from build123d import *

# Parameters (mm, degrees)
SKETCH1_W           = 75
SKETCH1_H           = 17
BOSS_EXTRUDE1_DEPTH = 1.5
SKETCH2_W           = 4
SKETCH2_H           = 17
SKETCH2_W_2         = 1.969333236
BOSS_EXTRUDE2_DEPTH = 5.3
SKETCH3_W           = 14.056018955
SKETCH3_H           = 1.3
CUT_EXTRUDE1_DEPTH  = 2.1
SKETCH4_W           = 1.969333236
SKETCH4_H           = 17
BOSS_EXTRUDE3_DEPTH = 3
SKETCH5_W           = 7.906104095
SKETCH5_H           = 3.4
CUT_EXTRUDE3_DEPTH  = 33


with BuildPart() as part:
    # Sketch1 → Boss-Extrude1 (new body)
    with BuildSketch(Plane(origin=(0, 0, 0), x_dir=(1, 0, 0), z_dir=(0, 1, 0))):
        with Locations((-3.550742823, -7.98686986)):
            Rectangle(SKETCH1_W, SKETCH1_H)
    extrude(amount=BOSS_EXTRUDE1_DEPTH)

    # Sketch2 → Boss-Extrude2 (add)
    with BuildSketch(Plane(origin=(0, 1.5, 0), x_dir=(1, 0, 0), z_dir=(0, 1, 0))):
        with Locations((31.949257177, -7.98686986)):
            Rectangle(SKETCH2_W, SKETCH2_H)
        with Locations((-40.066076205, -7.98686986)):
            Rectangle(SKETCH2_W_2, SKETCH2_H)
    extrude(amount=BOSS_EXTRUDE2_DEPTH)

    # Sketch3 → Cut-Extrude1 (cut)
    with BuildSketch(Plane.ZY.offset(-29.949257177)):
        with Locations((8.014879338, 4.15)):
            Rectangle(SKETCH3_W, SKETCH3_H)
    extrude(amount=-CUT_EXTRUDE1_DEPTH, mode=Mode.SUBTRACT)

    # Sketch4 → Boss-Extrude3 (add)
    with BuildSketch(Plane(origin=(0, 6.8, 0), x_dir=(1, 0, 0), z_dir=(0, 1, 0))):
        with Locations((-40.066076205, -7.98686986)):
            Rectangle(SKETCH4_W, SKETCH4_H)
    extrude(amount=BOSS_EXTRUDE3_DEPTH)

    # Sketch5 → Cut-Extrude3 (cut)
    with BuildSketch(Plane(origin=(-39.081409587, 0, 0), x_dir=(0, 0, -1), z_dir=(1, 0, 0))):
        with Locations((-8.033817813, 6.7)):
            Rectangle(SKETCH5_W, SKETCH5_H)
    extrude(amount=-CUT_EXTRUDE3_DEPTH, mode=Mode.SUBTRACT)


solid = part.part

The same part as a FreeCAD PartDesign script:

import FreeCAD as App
import Part
import Sketcher

doc = App.newDocument("Part")
params = doc.addObject("Spreadsheet::Sheet", "Params")
for row, (alias, value) in enumerate([
    ("sketch1_width", "75 mm"),
    ("sketch1_height", "17 mm"),
    ("pad1_length", "1.5 mm"),
    ("sketch2_width", "4 mm"),
    ("sketch2_height", "17 mm"),
    ("pad2_length", "5.3 mm"),
    ("sketch3_width", "1.3 mm"),
    ("pocket1_length", "2.1 mm"),
    ("sketch4_height", "17 mm"),
    ("pad3_length", "3 mm"),
    ("sketch5_width", "3.4 mm"),
    ("pocket2_length", "33 mm"),
], start=1):
    params.set(f"A{row}", alias)
    params.set(f"B{row}", "=" + value)
    params.setAlias(f"B{row}", alias)

body = doc.addObject("PartDesign::Body", "Body")

# Sketch on XZ plane
sketch1 = body.newObject("Sketcher::SketchObject", "Sketch")
sketch1.AttachmentSupport = (doc.getObject("XZ_Plane"), [""])
sketch1.MapMode = "FlatFace"
sketch1.addGeometry(Part.LineSegment(App.Vector(-41, -1, 0), App.Vector(-41, 16, 0)), False)
sketch1.addGeometry(Part.LineSegment(App.Vector(-41, 16, 0), App.Vector(34, 16, 0)), False)
sketch1.addGeometry(Part.LineSegment(App.Vector(34, 16, 0), App.Vector(34, -1, 0)), False)
sketch1.addGeometry(Part.LineSegment(App.Vector(34, -1, 0), App.Vector(-41, -1, 0)), False)
sketch1.addConstraint(Sketcher.Constraint("Coincident", 0, 2, 1, 1))
sketch1.addConstraint(Sketcher.Constraint("Coincident", 1, 2, 2, 1))
sketch1.addConstraint(Sketcher.Constraint("Coincident", 2, 2, 3, 1))
sketch1.addConstraint(Sketcher.Constraint("Coincident", 3, 2, 0, 1))
sketch1.addConstraint(Sketcher.Constraint("Vertical", 0))
sketch1.addConstraint(Sketcher.Constraint("Horizontal", 1))
sketch1.addConstraint(Sketcher.Constraint("Vertical", 2))
sketch1.addConstraint(Sketcher.Constraint("Horizontal", 3))
sketch1.addConstraint(Sketcher.Constraint("DistanceX", 1, 1, 1, 2, 75.0))
sketch1.addConstraint(Sketcher.Constraint("DistanceY", 0, 1, 0, 2, 17.0))
sketch1.addConstraint(Sketcher.Constraint("DistanceY", -1, 1, 0, 2, 16.48687))
sketch1.addConstraint(Sketcher.Constraint("DistanceX", 0, 2, -1, 1, 41.050743))
sketch1.setExpression("Constraints[8]", "Params.sketch1_width")
sketch1.setExpression("Constraints[9]", "Params.sketch1_height")
pad1 = body.newObject("PartDesign::Pad", "Pad")
pad1.Profile = sketch1
pad1.setExpression("Length", "Params.pad1_length")
pad1.Reversed = True

# Sketch on XZ plane
sketch2 = body.newObject("Sketcher::SketchObject", "Sketch001")
sketch2.AttachmentSupport = (doc.getObject("XZ_Plane"), [""])
sketch2.MapMode = "FlatFace"
sketch2.AttachmentOffset = App.Placement(App.Vector(0, 0, -1.5), App.Rotation())
sketch2.addGeometry(Part.LineSegment(App.Vector(29.9, -0.5, 0), App.Vector(29.9, 16.5, 0)), False)
sketch2.addGeometry(Part.LineSegment(App.Vector(29.9, 16.5, 0), App.Vector(33.9, 16.5, 0)), False)
sketch2.addGeometry(Part.LineSegment(App.Vector(33.9, 16.5, 0), App.Vector(33.9, -0.5, 0)), False)
sketch2.addGeometry(Part.LineSegment(App.Vector(33.9, -0.5, 0), App.Vector(29.9, -0.5, 0)), False)
sketch2.addGeometry(Part.LineSegment(App.Vector(-41.1, -0.5, 0), App.Vector(-41.1, 16.5, 0)), False)
sketch2.addGeometry(Part.LineSegment(App.Vector(-41.1, 16.5, 0), App.Vector(-39.1, 16.5, 0)), False)
sketch2.addGeometry(Part.LineSegment(App.Vector(-39.1, 16.5, 0), App.Vector(-39.1, -0.5, 0)), False)
sketch2.addGeometry(Part.LineSegment(App.Vector(-39.1, -0.5, 0), App.Vector(-41.1, -0.5, 0)), False)
sketch2.addConstraint(Sketcher.Constraint("Coincident", 0, 2, 1, 1))
sketch2.addConstraint(Sketcher.Constraint("Coincident", 1, 2, 2, 1))
sketch2.addConstraint(Sketcher.Constraint("Coincident", 2, 2, 3, 1))
sketch2.addConstraint(Sketcher.Constraint("Coincident", 3, 2, 0, 1))
sketch2.addConstraint(Sketcher.Constraint("Coincident", 4, 2, 5, 1))
sketch2.addConstraint(Sketcher.Constraint("Coincident", 5, 2, 6, 1))
sketch2.addConstraint(Sketcher.Constraint("Coincident", 6, 2, 7, 1))
sketch2.addConstraint(Sketcher.Constraint("Coincident", 7, 2, 4, 1))
sketch2.addConstraint(Sketcher.Constraint("Vertical", 0))
sketch2.addConstraint(Sketcher.Constraint("Horizontal", 1))
sketch2.addConstraint(Sketcher.Constraint("Vertical", 2))
sketch2.addConstraint(Sketcher.Constraint("Horizontal", 3))
sketch2.addConstraint(Sketcher.Constraint("Vertical", 4))
sketch2.addConstraint(Sketcher.Constraint("Horizontal", 5))
sketch2.addConstraint(Sketcher.Constraint("Vertical", 6))
sketch2.addConstraint(Sketcher.Constraint("Horizontal", 7))
sketch2.addConstraint(Sketcher.Constraint("Horizontal", 1, 2, 4, 2))
sketch2.addConstraint(Sketcher.Constraint("Horizontal", 3, 2, 6, 2))
sketch2.addConstraint(Sketcher.Constraint("DistanceX", 1, 1, 1, 2, 4.0))
sketch2.addConstraint(Sketcher.Constraint("DistanceY", 0, 1, 0, 2, 17.0))
sketch2.addConstraint(Sketcher.Constraint("DistanceX", 4, 2, 0, 2, 71.0))
sketch2.addConstraint(Sketcher.Constraint("DistanceX", 5, 1, 5, 2, 1.969333))
sketch2.addConstraint(Sketcher.Constraint("DistanceY", -1, 1, 0, 2, 16.48687))
sketch2.addConstraint(Sketcher.Constraint("DistanceX", 5, 2, -1, 1, 39.08141))
sketch2.setExpression("Constraints[18]", "Params.sketch2_width")
sketch2.setExpression("Constraints[19]", "Params.sketch2_height")
pad2 = body.newObject("PartDesign::Pad", "Pad001")
pad2.Profile = sketch2
pad2.setExpression("Length", "Params.pad2_length")
pad2.Reversed = True

# Sketch on YZ plane
sketch3 = body.newObject("Sketcher::SketchObject", "Sketch002")
sketch3.AttachmentSupport = (doc.getObject("YZ_Plane"), [""])
sketch3.MapMode = "FlatFace"
sketch3.AttachmentOffset = App.Placement(App.Vector(0, 0, 29.949257), App.Rotation())
sketch3.addGeometry(Part.LineSegment(App.Vector(4.8, 1, 0), App.Vector(3.5, 1, 0)), False)
sketch3.addGeometry(Part.LineSegment(App.Vector(3.5, 1, 0), App.Vector(3.5, 15, 0)), False)
sketch3.addGeometry(Part.LineSegment(App.Vector(3.5, 15, 0), App.Vector(4.8, 15, 0)), False)
sketch3.addGeometry(Part.LineSegment(App.Vector(4.8, 15, 0), App.Vector(4.8, 1, 0)), False)
sketch3.addConstraint(Sketcher.Constraint("Coincident", 0, 2, 1, 1))
sketch3.addConstraint(Sketcher.Constraint("Coincident", 1, 2, 2, 1))
sketch3.addConstraint(Sketcher.Constraint("Coincident", 2, 2, 3, 1))
sketch3.addConstraint(Sketcher.Constraint("Coincident", 3, 2, 0, 1))
sketch3.addConstraint(Sketcher.Constraint("Horizontal", 0))
sketch3.addConstraint(Sketcher.Constraint("Vertical", 1))
sketch3.addConstraint(Sketcher.Constraint("Horizontal", 2))
sketch3.addConstraint(Sketcher.Constraint("Vertical", 3))
sketch3.addConstraint(Sketcher.Constraint("DistanceX", 0, 2, 0, 1, 1.3))
sketch3.addConstraint(Sketcher.Constraint("DistanceX", -1, 1, 0, 2, 3.5))
sketch3.addConstraint(Sketcher.Constraint("DistanceY", 1, 1, 1, 2, 14.056019))
sketch3.addConstraint(Sketcher.Constraint("DistanceY", -1, 1, 0, 2, 0.98687))
sketch3.setExpression("Constraints[8]", "Params.sketch3_width")
pocket1 = body.newObject("PartDesign::Pocket", "Pocket")
pocket1.Profile = sketch3
pocket1.setExpression("Length", "Params.pocket1_length")
pocket1.Reversed = True

# Sketch on XZ plane
sketch4 = body.newObject("Sketcher::SketchObject", "Sketch003")
sketch4.AttachmentSupport = (doc.getObject("XZ_Plane"), [""])
sketch4.MapMode = "FlatFace"
sketch4.AttachmentOffset = App.Placement(App.Vector(0, 0, -6.8), App.Rotation())
sketch4.addGeometry(Part.LineSegment(App.Vector(-41.1, -0.5, 0), App.Vector(-41.1, 16.5, 0)), False)
sketch4.addGeometry(Part.LineSegment(App.Vector(-41.1, 16.5, 0), App.Vector(-39.1, 16.5, 0)), False)
sketch4.addGeometry(Part.LineSegment(App.Vector(-39.1, 16.5, 0), App.Vector(-39.1, -0.5, 0)), False)
sketch4.addGeometry(Part.LineSegment(App.Vector(-39.1, -0.5, 0), App.Vector(-41.1, -0.5, 0)), False)
sketch4.addConstraint(Sketcher.Constraint("Coincident", 0, 2, 1, 1))
sketch4.addConstraint(Sketcher.Constraint("Coincident", 1, 2, 2, 1))
sketch4.addConstraint(Sketcher.Constraint("Coincident", 2, 2, 3, 1))
sketch4.addConstraint(Sketcher.Constraint("Coincident", 3, 2, 0, 1))
sketch4.addConstraint(Sketcher.Constraint("Vertical", 0))
sketch4.addConstraint(Sketcher.Constraint("Horizontal", 1))
sketch4.addConstraint(Sketcher.Constraint("Vertical", 2))
sketch4.addConstraint(Sketcher.Constraint("Horizontal", 3))
sketch4.addConstraint(Sketcher.Constraint("DistanceY", 0, 1, 0, 2, 17.0))
sketch4.addConstraint(Sketcher.Constraint("DistanceX", 1, 1, 1, 2, 1.969333))
sketch4.addConstraint(Sketcher.Constraint("DistanceY", -1, 1, 0, 2, 16.48687))
sketch4.addConstraint(Sketcher.Constraint("DistanceX", 1, 2, -1, 1, 39.08141))
sketch4.setExpression("Constraints[8]", "Params.sketch4_height")
pad3 = body.newObject("PartDesign::Pad", "Pad002")
pad3.Profile = sketch4
pad3.setExpression("Length", "Params.pad3_length")
pad3.Reversed = True

# Sketch on YZ plane
sketch5 = body.newObject("Sketcher::SketchObject", "Sketch004")
sketch5.AttachmentSupport = (doc.getObject("YZ_Plane"), [""])
sketch5.MapMode = "FlatFace"
sketch5.AttachmentOffset = App.Placement(App.Vector(0, 0, -39.08141), App.Rotation())
sketch5.addGeometry(Part.LineSegment(App.Vector(8.4, 12, 0), App.Vector(5, 12, 0)), False)
sketch5.addGeometry(Part.LineSegment(App.Vector(5, 12, 0), App.Vector(5, 4.1, 0)), False)
sketch5.addGeometry(Part.LineSegment(App.Vector(5, 4.1, 0), App.Vector(8.4, 4.1, 0)), False)
sketch5.addGeometry(Part.LineSegment(App.Vector(8.4, 4.1, 0), App.Vector(8.4, 12, 0)), False)
sketch5.addConstraint(Sketcher.Constraint("Coincident", 0, 2, 1, 1))
sketch5.addConstraint(Sketcher.Constraint("Coincident", 1, 2, 2, 1))
sketch5.addConstraint(Sketcher.Constraint("Coincident", 2, 2, 3, 1))
sketch5.addConstraint(Sketcher.Constraint("Coincident", 3, 2, 0, 1))
sketch5.addConstraint(Sketcher.Constraint("Horizontal", 0))
sketch5.addConstraint(Sketcher.Constraint("Vertical", 1))
sketch5.addConstraint(Sketcher.Constraint("Horizontal", 2))
sketch5.addConstraint(Sketcher.Constraint("Vertical", 3))
sketch5.addConstraint(Sketcher.Constraint("DistanceX", 0, 2, 0, 1, 3.4))
sketch5.addConstraint(Sketcher.Constraint("DistanceX", -1, 1, 0, 2, 5.0))
sketch5.addConstraint(Sketcher.Constraint("DistanceY", 1, 2, 1, 1, 7.906104))
sketch5.addConstraint(Sketcher.Constraint("DistanceY", -1, 1, 0, 2, 11.98687))
sketch5.setExpression("Constraints[8]", "Params.sketch5_width")
pocket2 = body.newObject("PartDesign::Pocket", "Pocket001")
pocket2.Profile = sketch5
pocket2.setExpression("Length", "Params.pocket2_length")

doc.recompute()
